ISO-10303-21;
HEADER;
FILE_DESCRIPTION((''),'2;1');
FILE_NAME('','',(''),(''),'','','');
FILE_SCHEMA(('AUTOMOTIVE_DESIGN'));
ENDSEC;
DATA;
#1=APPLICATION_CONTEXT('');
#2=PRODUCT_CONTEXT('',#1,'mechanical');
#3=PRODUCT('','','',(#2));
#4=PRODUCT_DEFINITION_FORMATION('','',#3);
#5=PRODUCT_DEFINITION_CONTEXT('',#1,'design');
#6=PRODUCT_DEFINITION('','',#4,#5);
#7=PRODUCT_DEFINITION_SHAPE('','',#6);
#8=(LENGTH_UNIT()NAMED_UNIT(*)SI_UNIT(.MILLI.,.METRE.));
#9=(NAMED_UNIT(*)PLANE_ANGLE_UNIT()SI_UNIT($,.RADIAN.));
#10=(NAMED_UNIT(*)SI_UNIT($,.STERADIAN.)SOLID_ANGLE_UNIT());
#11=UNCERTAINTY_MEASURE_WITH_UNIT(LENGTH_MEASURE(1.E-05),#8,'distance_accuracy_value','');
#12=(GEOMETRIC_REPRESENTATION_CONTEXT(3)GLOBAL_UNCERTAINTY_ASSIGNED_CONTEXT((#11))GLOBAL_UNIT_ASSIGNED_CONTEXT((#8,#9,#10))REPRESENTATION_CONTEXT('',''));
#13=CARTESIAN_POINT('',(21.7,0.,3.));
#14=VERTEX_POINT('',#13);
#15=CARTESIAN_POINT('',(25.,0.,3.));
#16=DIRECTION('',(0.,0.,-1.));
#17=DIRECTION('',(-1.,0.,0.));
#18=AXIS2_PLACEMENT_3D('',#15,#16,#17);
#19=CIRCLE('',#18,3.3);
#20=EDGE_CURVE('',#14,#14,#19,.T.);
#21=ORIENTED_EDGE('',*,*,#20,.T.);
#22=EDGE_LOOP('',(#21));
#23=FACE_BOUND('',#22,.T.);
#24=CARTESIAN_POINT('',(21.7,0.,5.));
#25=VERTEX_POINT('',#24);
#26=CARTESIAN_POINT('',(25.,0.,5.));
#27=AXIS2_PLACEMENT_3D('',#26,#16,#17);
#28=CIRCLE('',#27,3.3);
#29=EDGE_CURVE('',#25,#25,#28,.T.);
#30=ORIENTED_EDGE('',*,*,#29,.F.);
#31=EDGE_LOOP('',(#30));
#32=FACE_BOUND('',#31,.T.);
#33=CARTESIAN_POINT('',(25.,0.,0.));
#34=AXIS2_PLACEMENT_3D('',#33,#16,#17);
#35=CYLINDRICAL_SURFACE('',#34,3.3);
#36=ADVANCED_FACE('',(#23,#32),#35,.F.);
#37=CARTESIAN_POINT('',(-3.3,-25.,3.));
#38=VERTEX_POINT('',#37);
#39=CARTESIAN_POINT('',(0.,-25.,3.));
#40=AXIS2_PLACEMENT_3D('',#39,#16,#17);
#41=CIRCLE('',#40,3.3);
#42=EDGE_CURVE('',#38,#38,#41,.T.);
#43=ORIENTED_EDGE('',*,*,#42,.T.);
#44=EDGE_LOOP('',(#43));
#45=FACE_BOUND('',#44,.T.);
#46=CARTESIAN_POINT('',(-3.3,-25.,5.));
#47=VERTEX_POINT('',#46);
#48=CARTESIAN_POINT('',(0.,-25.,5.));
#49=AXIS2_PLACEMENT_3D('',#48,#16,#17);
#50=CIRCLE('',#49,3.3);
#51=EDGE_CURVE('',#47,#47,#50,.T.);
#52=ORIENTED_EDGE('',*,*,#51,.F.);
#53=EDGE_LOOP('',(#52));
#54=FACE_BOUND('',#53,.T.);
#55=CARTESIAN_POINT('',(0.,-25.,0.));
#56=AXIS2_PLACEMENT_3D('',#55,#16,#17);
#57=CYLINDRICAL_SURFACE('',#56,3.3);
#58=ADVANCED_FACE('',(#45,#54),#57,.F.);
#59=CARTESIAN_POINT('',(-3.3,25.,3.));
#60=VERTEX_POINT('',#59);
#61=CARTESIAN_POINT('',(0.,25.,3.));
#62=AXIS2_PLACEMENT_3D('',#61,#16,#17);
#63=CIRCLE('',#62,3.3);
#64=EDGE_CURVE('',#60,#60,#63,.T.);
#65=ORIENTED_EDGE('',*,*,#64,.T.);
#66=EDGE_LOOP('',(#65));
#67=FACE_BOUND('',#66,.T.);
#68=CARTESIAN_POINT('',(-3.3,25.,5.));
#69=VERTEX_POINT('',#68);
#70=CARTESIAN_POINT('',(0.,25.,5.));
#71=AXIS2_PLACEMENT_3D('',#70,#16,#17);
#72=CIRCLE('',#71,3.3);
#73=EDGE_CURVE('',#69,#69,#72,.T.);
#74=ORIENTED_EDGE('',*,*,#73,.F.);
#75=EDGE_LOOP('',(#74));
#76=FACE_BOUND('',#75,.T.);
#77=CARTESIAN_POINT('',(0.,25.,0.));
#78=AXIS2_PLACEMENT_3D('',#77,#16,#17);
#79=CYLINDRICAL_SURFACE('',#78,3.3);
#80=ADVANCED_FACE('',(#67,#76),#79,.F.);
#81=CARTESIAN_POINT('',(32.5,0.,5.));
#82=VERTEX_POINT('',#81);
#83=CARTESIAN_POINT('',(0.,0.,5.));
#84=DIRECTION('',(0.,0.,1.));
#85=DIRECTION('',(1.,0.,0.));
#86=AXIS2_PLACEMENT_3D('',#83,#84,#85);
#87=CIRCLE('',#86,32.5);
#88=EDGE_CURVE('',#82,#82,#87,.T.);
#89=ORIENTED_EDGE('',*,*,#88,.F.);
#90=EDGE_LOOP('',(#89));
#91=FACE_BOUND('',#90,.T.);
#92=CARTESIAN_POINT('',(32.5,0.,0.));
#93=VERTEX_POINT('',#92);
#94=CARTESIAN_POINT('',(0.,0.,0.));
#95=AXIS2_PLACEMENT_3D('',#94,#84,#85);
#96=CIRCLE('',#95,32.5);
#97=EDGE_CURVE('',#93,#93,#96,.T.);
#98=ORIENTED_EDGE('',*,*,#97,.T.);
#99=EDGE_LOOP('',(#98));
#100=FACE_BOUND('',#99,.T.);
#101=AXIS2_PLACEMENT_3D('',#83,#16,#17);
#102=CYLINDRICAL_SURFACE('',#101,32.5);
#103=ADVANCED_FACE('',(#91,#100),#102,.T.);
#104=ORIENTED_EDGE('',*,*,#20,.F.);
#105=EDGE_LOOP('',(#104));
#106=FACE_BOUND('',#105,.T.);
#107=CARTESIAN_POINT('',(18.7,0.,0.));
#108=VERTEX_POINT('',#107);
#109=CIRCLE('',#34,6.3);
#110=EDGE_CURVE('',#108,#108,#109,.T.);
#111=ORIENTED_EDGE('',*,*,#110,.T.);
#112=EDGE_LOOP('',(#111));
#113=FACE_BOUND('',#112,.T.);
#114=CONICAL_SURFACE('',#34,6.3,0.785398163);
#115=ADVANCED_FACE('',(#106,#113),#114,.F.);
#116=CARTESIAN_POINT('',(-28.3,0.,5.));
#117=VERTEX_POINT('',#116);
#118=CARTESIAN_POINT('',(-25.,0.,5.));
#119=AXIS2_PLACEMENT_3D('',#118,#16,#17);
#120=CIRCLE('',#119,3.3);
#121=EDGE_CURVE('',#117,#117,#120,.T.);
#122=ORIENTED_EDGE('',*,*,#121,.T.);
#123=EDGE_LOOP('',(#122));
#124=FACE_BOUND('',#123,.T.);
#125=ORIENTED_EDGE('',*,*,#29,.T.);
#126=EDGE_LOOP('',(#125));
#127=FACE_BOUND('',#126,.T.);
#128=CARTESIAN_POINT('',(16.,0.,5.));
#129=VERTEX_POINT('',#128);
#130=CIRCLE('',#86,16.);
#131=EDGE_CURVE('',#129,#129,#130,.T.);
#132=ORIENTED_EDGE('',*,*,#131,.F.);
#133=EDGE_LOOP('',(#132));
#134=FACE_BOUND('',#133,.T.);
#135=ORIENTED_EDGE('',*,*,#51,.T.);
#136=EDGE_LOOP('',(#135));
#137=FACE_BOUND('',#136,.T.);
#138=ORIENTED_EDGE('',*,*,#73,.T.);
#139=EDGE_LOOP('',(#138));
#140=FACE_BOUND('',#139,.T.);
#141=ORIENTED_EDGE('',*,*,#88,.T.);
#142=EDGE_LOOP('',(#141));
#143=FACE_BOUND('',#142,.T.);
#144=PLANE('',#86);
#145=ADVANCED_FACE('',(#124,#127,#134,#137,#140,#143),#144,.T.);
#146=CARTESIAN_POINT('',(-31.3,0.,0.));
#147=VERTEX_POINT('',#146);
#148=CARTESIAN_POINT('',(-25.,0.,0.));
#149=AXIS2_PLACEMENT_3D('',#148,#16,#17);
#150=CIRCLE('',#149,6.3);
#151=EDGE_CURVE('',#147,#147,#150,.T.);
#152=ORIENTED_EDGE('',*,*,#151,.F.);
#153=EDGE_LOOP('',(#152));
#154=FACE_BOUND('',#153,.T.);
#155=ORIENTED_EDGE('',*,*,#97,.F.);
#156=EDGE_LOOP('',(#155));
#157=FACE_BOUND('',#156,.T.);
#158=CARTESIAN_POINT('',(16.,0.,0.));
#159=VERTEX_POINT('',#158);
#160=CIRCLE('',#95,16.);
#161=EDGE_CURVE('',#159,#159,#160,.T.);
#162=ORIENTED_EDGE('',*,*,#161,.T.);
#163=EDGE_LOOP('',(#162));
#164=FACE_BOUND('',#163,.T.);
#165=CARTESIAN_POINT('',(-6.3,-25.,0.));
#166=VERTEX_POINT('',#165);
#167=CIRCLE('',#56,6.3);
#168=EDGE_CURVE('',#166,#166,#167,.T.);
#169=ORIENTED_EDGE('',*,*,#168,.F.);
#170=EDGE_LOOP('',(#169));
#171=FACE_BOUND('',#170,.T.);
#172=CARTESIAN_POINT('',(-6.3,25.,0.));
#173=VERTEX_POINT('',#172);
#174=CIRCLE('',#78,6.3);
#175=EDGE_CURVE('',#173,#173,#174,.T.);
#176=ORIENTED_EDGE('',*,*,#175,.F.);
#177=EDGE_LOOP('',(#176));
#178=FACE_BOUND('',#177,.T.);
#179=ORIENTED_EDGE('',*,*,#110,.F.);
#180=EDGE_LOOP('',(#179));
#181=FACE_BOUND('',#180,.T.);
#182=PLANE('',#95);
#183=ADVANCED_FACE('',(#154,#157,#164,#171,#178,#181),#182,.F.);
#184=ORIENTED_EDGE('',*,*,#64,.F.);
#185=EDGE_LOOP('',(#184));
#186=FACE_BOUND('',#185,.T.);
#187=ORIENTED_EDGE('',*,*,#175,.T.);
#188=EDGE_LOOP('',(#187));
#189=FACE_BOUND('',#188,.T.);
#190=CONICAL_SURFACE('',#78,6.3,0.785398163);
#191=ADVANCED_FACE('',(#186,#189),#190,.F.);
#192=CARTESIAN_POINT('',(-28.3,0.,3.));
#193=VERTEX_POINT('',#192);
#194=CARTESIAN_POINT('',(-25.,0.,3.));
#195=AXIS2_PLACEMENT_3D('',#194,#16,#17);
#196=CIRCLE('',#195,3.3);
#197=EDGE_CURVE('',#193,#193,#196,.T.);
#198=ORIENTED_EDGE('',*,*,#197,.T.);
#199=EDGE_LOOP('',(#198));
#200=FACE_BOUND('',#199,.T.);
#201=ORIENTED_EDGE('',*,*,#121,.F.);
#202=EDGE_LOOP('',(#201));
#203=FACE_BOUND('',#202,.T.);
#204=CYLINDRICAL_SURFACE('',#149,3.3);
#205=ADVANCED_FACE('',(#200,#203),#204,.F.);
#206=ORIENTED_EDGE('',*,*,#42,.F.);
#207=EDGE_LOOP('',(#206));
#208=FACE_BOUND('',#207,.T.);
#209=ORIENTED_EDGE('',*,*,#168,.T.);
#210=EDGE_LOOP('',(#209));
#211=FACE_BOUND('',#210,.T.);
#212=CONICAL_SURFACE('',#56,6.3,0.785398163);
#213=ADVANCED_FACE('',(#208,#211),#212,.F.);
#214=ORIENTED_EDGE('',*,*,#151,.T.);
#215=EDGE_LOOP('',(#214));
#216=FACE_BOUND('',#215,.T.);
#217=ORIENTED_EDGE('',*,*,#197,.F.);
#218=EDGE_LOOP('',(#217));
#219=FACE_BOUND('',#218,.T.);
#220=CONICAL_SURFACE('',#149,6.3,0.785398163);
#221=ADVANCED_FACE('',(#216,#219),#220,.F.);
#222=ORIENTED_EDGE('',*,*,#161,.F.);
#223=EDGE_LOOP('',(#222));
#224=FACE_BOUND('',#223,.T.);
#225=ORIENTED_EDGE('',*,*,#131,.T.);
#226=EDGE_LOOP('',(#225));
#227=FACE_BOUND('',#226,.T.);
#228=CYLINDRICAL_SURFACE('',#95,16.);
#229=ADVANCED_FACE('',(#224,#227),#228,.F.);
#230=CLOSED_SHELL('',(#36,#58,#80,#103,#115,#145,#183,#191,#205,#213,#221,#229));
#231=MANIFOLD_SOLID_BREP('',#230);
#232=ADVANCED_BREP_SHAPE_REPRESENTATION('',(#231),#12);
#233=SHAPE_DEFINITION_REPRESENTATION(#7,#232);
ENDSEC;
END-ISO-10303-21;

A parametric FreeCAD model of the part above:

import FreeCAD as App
import Part
import Sketcher
Q = App.Units.Quantity


def add_polygon(sketch, points):
    """Adds a closed chain of lines whose ends are joined by coincident constraints."""
    first, n = sketch.GeometryCount, len(points)
    for a, b in zip(points, points[1:] + points[:1]):
        sketch.addGeometry(Part.LineSegment(App.Vector(*a, 0), App.Vector(*b, 0)), False)
    for i in range(n):
        sketch.addConstraint(Sketcher.Constraint("Coincident", first + i, 2, first + (i + 1) % n, 1))

doc = App.newDocument("Part")
body = doc.addObject("PartDesign::Body", "Body")

# Sketch on XY plane
sketch1 = body.newObject("Sketcher::SketchObject", "Sketch")
sketch1.AttachmentSupport = (doc.getObject("XY_Plane"), [""])
sketch1.MapMode = "FlatFace"
sketch1.addGeometry(Part.Circle(App.Vector(0, 0, 0), App.Vector(0, 0, 1), 32), False)
sketch1.addConstraint([
    Sketcher.Constraint("Coincident", 0, 3, -1, 1),
    Sketcher.Constraint("Diameter", 0, 65.0),
])
pad1 = body.newObject("PartDesign::Pad", "Pad")
pad1.Profile = sketch1
pad1.Length = 5

# Sketch on YZ plane
sketch2 = body.newObject("Sketcher::SketchObject", "Sketch001")
sketch2.AttachmentSupport = (doc.getObject("YZ_Plane"), [""])
sketch2.MapMode = "FlatFace"
add_polygon(sketch2, [(-25, 5), (-25, 0), (-18.7, 0), (-21.7, 3), (-21.7, 5)])  # lines 0-4
sketch2.addGeometry(Part.LineSegment(App.Vector(-25, 0, 0), App.Vector(-25, 5, 0)), True)  # axis
sketch2.addConstraint([
    Sketcher.Constraint("Vertical", 0),
    Sketcher.Constraint("Horizontal", 1),
    Sketcher.Constraint("Vertical", 3),
    Sketcher.Constraint("Horizontal", 4),
    Sketcher.Constraint("Vertical", 5),
    Sketcher.Constraint("Coincident", 5, 1, 0, 2),
    Sketcher.Constraint("PointOnObject", 0, 2, -1),
    Sketcher.Constraint("Horizontal", 3, 2, 5, 2),
    Sketcher.Constraint("DistanceY", 0, 2, 0, 1, 5.0),
    Sketcher.Constraint("DistanceY", 3, 1, 3, 2, 2.0),
    Sketcher.Constraint("Angle", 2, Q("135 deg")),
    Sketcher.Constraint("DistanceX", 1, 1, 1, 2, 6.3),
    Sketcher.Constraint("DistanceX", 0, 2, -1, 1, 25.0),
])
groove = body.newObject("PartDesign::Groove", "Groove")
groove.Profile = sketch2
groove.ReferenceAxis = (sketch2, ["Axis0"])
groove.Angle = 360
doc.recompute()

polarpattern = body.newObject("PartDesign::PolarPattern", "PolarPattern")
polarpattern.Originals = [groove]
polarpattern.Axis = (doc.getObject("Z_Axis"), [""])
polarpattern.Angle = 360
polarpattern.Occurrences = 4
body.Tip = polarpattern

# Sketch on XY plane
sketch3 = body.newObject("Sketcher::SketchObject", "Sketch002")
sketch3.AttachmentSupport = (doc.getObject("XY_Plane"), [""])
sketch3.MapMode = "FlatFace"
sketch3.AttachmentOffset = App.Placement(App.Vector(0, 0, 5), App.Rotation())
sketch3.addGeometry(Part.Circle(App.Vector(0, 0, 0), App.Vector(0, 0, 1), 16), False)
sketch3.addConstraint([
    Sketcher.Constraint("Coincident", 0, 3, -1, 1),
    Sketcher.Constraint("Diameter", 0, 32.0),
])
pocket1 = body.newObject("PartDesign::Pocket", "Pocket")
pocket1.Profile = sketch3
pocket1.Type = "ThroughAll"

doc.recompute()
